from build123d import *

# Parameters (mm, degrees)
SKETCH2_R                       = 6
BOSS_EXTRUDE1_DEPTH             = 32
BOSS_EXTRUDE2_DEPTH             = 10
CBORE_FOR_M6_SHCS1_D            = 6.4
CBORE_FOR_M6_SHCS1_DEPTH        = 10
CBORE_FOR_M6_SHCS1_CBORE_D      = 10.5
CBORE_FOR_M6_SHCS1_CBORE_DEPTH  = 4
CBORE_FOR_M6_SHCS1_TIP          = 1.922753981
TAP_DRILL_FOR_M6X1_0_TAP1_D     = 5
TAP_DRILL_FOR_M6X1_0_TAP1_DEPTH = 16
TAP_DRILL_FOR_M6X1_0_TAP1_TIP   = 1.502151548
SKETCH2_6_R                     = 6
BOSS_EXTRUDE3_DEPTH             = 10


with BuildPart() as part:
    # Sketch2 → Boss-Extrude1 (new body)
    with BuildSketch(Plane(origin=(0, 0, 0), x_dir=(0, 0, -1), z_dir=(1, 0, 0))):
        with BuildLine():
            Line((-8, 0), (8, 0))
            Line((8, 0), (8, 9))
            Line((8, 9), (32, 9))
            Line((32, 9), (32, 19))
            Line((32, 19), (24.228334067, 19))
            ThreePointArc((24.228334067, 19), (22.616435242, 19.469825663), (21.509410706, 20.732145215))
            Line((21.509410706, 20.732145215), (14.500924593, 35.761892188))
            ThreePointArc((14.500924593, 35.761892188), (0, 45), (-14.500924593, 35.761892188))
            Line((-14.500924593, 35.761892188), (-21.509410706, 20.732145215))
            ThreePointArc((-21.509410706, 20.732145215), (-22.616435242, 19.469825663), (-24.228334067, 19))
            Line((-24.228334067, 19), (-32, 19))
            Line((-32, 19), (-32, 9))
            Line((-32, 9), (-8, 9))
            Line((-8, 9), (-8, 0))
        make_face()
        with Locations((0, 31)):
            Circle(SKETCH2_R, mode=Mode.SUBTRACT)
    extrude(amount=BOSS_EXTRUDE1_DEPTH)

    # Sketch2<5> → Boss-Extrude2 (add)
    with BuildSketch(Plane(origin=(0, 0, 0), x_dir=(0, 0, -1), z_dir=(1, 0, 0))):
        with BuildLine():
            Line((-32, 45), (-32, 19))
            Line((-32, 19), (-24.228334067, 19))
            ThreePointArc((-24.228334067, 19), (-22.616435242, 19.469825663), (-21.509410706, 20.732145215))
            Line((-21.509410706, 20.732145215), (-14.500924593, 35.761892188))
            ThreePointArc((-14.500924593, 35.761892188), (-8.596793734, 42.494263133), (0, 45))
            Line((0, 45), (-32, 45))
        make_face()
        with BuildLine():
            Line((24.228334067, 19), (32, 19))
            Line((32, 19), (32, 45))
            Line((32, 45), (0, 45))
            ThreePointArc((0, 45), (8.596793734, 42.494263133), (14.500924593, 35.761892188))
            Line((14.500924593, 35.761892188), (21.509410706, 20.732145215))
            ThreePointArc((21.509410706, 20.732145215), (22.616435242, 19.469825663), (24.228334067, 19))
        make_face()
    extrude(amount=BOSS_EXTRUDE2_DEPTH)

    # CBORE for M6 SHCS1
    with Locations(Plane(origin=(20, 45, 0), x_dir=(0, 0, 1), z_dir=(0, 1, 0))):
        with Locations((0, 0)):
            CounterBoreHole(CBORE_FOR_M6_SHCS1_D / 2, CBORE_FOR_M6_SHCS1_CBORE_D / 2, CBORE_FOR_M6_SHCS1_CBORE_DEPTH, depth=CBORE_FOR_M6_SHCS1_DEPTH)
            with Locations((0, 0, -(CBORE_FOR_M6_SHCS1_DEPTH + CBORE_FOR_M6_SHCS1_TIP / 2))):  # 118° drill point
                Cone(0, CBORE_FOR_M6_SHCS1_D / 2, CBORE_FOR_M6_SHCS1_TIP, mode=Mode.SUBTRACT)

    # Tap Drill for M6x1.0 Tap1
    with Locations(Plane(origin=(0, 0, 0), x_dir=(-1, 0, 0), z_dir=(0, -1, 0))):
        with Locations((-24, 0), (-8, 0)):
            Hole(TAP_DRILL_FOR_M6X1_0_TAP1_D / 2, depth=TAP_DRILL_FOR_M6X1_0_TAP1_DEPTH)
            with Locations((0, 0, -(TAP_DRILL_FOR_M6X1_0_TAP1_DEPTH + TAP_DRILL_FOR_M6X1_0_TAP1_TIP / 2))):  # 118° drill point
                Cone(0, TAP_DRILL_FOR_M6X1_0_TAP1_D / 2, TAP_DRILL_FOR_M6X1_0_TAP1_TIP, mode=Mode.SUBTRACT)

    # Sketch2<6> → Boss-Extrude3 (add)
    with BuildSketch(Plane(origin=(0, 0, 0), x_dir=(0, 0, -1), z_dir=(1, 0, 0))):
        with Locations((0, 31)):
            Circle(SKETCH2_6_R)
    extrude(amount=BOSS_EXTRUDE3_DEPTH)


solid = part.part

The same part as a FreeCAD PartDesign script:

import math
import FreeCAD as App
import Part
import Sketcher

V = App.Vector
Q = App.Units.Quantity

doc = App.newDocument("Part")
params = doc.addObject("Spreadsheet::Sheet", "Params")
for row, (alias, value) in enumerate([
    ("sketch1_diameter", "12 mm"),
    ("sketch1_radius", "3 mm"),
    ("sketch1_radius2", "16 mm"),
    ("sketch1_width", "9 mm"),
    ("sketch1_width2", "10 mm"),
    ("pad1_length", "32 mm"),
    ("sketch2_radius", "3 mm"),
    ("sketch2_radius2", "16 mm"),
    ("sketch2_width", "26 mm"),
    ("sketch2_height", "32 mm"),
    ("pad2_length", "10 mm"),
    ("sketch3_diameter", "6.4 mm"),
    ("hole_diameter", "6.4 mm"),
    ("hole_depth", "10 mm"),
    ("hole_cbore_diameter", "10.5 mm"),
    ("hole_cbore_depth", "4 mm"),
    ("sketch4_diameter", "5 mm"),
    ("hole2_diameter", "5 mm"),
    ("hole2_depth", "16 mm"),
    ("sketch5_diameter", "12 mm"),
    ("pad3_length", "10 mm"),
], start=1):
    params.set(f"A{row}", alias)
    params.set(f"B{row}", "=" + value)
    params.setAlias(f"B{row}", alias)

body = doc.addObject("PartDesign::Body", "Body")

sketch1 = doc.addObject("Sketcher::SketchObject", "Sketch")
body.addObject(sketch1)
sketch1.AttachmentSupport = (doc.YZ_Plane, [""])
sketch1.MapMode = "FlatFace"
sketch1.addGeometry([
    Part.LineSegment(V(0, 8, 0), V(0, -8, 0)),
    Part.LineSegment(V(0, -8, 0), V(9, -8, 0)),
    Part.LineSegment(V(9, -8, 0), V(9, -32, 0)),
    Part.LineSegment(V(9, -32, 0), V(19, -32, 0)),
    Part.LineSegment(V(19, -32, 0), V(19, -24.2, 0)),
    Part.ArcOfCircle(Part.Circle(V(22, -24.2, 0), V(0, 0, 1), 3), math.radians(115), math.radians(180)),
    Part.LineSegment(V(20.7, -21.5, 0), V(35.8, -14.5, 0)),
    Part.ArcOfCircle(Part.Circle(V(29, 0, 0), V(0, 0, 1), 16), math.radians(-65), math.radians(65)),
    Part.LineSegment(V(35.8, 14.5, 0), V(20.7, 21.5, 0)),
    Part.ArcOfCircle(Part.Circle(V(22, 24.2, 0), V(0, 0, 1), 3), math.radians(-180), math.radians(-115)),
    Part.LineSegment(V(19, 24.2, 0), V(19, 32, 0)),
    Part.LineSegment(V(19, 32, 0), V(9, 32, 0)),
    Part.LineSegment(V(9, 32, 0), V(9, 8, 0)),
    Part.LineSegment(V(9, 8, 0), V(0, 8, 0)),
    Part.Circle(V(31, 0, 0), V(0, 0, 1), 6),
], False)
sketch1.addConstraint([
    Sketcher.Constraint("Coincident", 0, 2, 1, 1),
    Sketcher.Constraint("Coincident", 1, 2, 2, 1),
    Sketcher.Constraint("Coincident", 2, 2, 3, 1),
    Sketcher.Constraint("Coincident", 3, 2, 4, 1),
    Sketcher.Constraint("Tangent", 4, 2, 5, 2),
    Sketcher.Constraint("Tangent", 5, 1, 6, 1),
    Sketcher.Constraint("Tangent", 6, 2, 7, 1),
    Sketcher.Constraint("Tangent", 7, 2, 8, 1),
    Sketcher.Constraint("Tangent", 8, 2, 9, 2),
    Sketcher.Constraint("Tangent", 9, 1, 10, 1),
    Sketcher.Constraint("Coincident", 10, 2, 11, 1),
    Sketcher.Constraint("Coincident", 11, 2, 12, 1),
    Sketcher.Constraint("Coincident", 12, 2, 13, 1),
    Sketcher.Constraint("Coincident", 13, 2, 0, 1),
    Sketcher.Constraint("Vertical", 0),
    Sketcher.Constraint("Horizontal", 1),
    Sketcher.Constraint("Vertical", 2),
    Sketcher.Constraint("Horizontal", 3),
    Sketcher.Constraint("Vertical", 4),
    Sketcher.Constraint("Vertical", 10),
    Sketcher.Constraint("Horizontal", 11),
    Sketcher.Constraint("Vertical", 12),
    Sketcher.Constraint("Horizontal", 13),
    Sketcher.Constraint("Equal", 5, 9),
    Sketcher.Constraint("Symmetric", 0, 2, 13, 2, -1, 1),
    Sketcher.Constraint("Symmetric", 5, 3, 9, 3, -1),
    Sketcher.Constraint("Symmetric", 2, 2, 11, 2, -1),
    Sketcher.Constraint("PointOnObject", 7, 3, -1),
    Sketcher.Constraint("PointOnObject", 14, 3, -1),
    Sketcher.Constraint("Diameter", 14, Q("12 mm")),
    Sketcher.Constraint("Radius", 5, Q("3 mm")),
    Sketcher.Constraint("Radius", 7, Q("16 mm")),
    Sketcher.Constraint("DistanceX", 1, 1, 1, 2, Q("9 mm")),
    Sketcher.Constraint("DistanceX", 3, 1, 3, 2, Q("10 mm")),
    Sketcher.Constraint("DistanceY", 0, 2, 0, 1, Q("16 mm")),
    Sketcher.Constraint("DistanceY", 2, 2, 2, 1, Q("24 mm")),
    Sketcher.Constraint("Angle", 6, Q("25 deg")),
    Sketcher.Constraint("DistanceX", -1, 1, 7, 3, Q("29 mm")),
    Sketcher.Constraint("DistanceX", -1, 1, 14, 3, Q("31 mm")),
])
sketch1.setExpression("Constraints[29]", "Params.sketch1_diameter")
sketch1.setExpression("Constraints[30]", "Params.sketch1_radius")
sketch1.setExpression("Constraints[31]", "Params.sketch1_radius2")
sketch1.setExpression("Constraints[32]", "Params.sketch1_width")
sketch1.setExpression("Constraints[33]", "Params.sketch1_width2")
pad1 = doc.addObject("PartDesign::Pad", "Pad")
body.addObject(pad1)
pad1.Profile = sketch1
pad1.setExpression("Length", "Params.pad1_length")

sketch2 = doc.addObject("Sketcher::SketchObject", "Sketch001")
body.addObject(sketch2)
sketch2.AttachmentSupport = (doc.YZ_Plane, [""])
sketch2.MapMode = "FlatFace"
sketch2.addGeometry([
    Part.LineSegment(V(45, 32, 0), V(19, 32, 0)),
    Part.LineSegment(V(19, 32, 0), V(19, 24.2, 0)),
    Part.ArcOfCircle(Part.Circle(V(22, 24.2, 0), V(0, 0, 1), 3), math.radians(-180), math.radians(-115)),
    Part.LineSegment(V(20.7, 21.5, 0), V(35.8, 14.5, 0)),
    Part.ArcOfCircle(Part.Circle(V(29, 0, 0), V(0, 0, 1), 16), math.radians(0), math.radians(65)),
    Part.LineSegment(V(45, 0, 0), V(45, 32, 0)),
    Part.LineSegment(V(19, -24.2, 0), V(19, -32, 0)),
    Part.LineSegment(V(19, -32, 0), V(45, -32, 0)),
    Part.LineSegment(V(45, -32, 0), V(45, 0, 0)),
    Part.ArcOfCircle(Part.Circle(V(29, 0, 0), V(0, 0, 1), 16), math.radians(-65), math.radians(0)),
    Part.LineSegment(V(35.8, -14.5, 0), V(20.7, -21.5, 0)),
    Part.ArcOfCircle(Part.Circle(V(22, -24.2, 0), V(0, 0, 1), 3), math.radians(115), math.radians(180)),
], False)
sketch2.addConstraint([
    Sketcher.Constraint("Coincident", 0, 2, 1, 1),
    Sketcher.Constraint("Tangent", 1, 2, 2, 1),
    Sketcher.Constraint("Tangent", 2, 2, 3, 1),
    Sketcher.Constraint("Tangent", 3, 2, 4, 2),
    Sketcher.Constraint("Tangent", 4, 1, 5, 1),
    Sketcher.Constraint("Coincident", 5, 2, 0, 1),
    Sketcher.Constraint("Coincident", 6, 2, 7, 1),
    Sketcher.Constraint("Coincident", 7, 2, 8, 1),
    Sketcher.Constraint("Tangent", 8, 2, 9, 2),
    Sketcher.Constraint("Tangent", 9, 1, 10, 1),
    Sketcher.Constraint("Tangent", 10, 2, 11, 1),
    Sketcher.Constraint("Tangent", 11, 2, 6, 1),
    Sketcher.Constraint("Horizontal", 0),
    Sketcher.Constraint("Vertical", 1),
    Sketcher.Constraint("Vertical", 5),
    Sketcher.Constraint("Vertical", 6),
    Sketcher.Constraint("Horizontal", 7),
    Sketcher.Constraint("Vertical", 8),
    Sketcher.Constraint("Coincident", 9, 3, 4, 3),
    Sketcher.Constraint("Equal", 4, 9),
    Sketcher.Constraint("Equal", 2, 11),
    Sketcher.Constraint("Symmetric", 2, 3, 11, 3, -1),
    Sketcher.Constraint("PointOnObject", 4, 3, -1),
    Sketcher.Constraint("Equal", 1, 6),
    Sketcher.Constraint("Radius", 2, Q("3 mm")),
    Sketcher.Constraint("Radius", 4, Q("16 mm")),
    Sketcher.Constraint("DistanceX", 0, 2, 0, 1, Q("26 mm")),
    Sketcher.Constraint("DistanceY", 5, 1, 5, 2, Q("32 mm")),
    Sketcher.Constraint("Angle", 3, Q("-25 deg")),
    Sketcher.Constraint("DistanceX", -1, 1, 2, 3, Q("22 mm")),
])
sketch2.setExpression("Constraints[24]", "Params.sketch2_radius")
sketch2.setExpression("Constraints[25]", "Params.sketch2_radius2")
sketch2.setExpression("Constraints[26]", "Params.sketch2_width")
sketch2.setExpression("Constraints[27]", "Params.sketch2_height")
pad2 = doc.addObject("PartDesign::Pad", "Pad001")
body.addObject(pad2)
pad2.Profile = sketch2
pad2.setExpression("Length", "Params.pad2_length")

sketch3 = doc.addObject("Sketcher::SketchObject", "Sketch002")
body.addObject(sketch3)
sketch3.AttachmentSupport = (doc.XZ_Plane, [""])
sketch3.MapMode = "FlatFace"
sketch3.AttachmentOffset = App.Placement(V(0, 0, -45), App.Rotation())
sketch3.addGeometry(Part.Circle(V(20, 0, 0), V(0, 0, 1), 3.2), False)
sketch3.addConstraint([
    Sketcher.Constraint("PointOnObject", 0, 3, -1),
    Sketcher.Constraint("Diameter", 0, Q("6.4 mm")),
    Sketcher.Constraint("DistanceX", -1, 1, 0, 3, Q("20 mm")),
])
sketch3.setExpression("Constraints[1]", "Params.sketch3_diameter")
doc.recompute()
hole = doc.addObject("PartDesign::Hole", "Hole")
body.addObject(hole)
hole.Profile = sketch3
hole.ThreadType = "None"
hole.setExpression("Diameter", "Params.hole_diameter")
hole.DepthType = "Dimension"
hole.setExpression("Depth", "Params.hole_depth")
hole.DrillPoint = "Angled"
hole.DrillPointAngle = 118
hole.HoleCutType = "Counterbore"
hole.setExpression("HoleCutDiameter", "Params.hole_cbore_diameter")
hole.setExpression("HoleCutDepth", "Params.hole_cbore_depth")
hole.Reversed = True

sketch4 = doc.addObject("Sketcher::SketchObject", "Sketch003")
body.addObject(sketch4)
sketch4.AttachmentSupport = (doc.XZ_Plane, [""])
sketch4.MapMode = "FlatFace"
sketch4.addGeometry([
    Part.Circle(V(24, 0, 0), V(0, 0, 1), 2.5),
    Part.Circle(V(8, 0, 0), V(0, 0, 1), 2.5),
], False)
sketch4.addConstraint([
    Sketcher.Constraint("Equal", 0, 1),
    Sketcher.Constraint("PointOnObject", 0, 3, -1),
    Sketcher.Constraint("PointOnObject", 1, 3, -1),
    Sketcher.Constraint("Diameter", 0, Q("5 mm")),
    Sketcher.Constraint("DistanceX", -1, 1, 0, 3, Q("24 mm")),
    Sketcher.Constraint("DistanceX", -1, 1, 1, 3, Q("8 mm")),
])
sketch4.setExpression("Constraints[3]", "Params.sketch4_diameter")
doc.recompute()
hole2 = doc.addObject("PartDesign::Hole", "Hole001")
body.addObject(hole2)
hole2.Profile = sketch4
hole2.ThreadType = "None"
hole2.setExpression("Diameter", "Params.hole2_diameter")
hole2.DepthType = "Dimension"
hole2.setExpression("Depth", "Params.hole2_depth")
hole2.DrillPoint = "Angled"
hole2.DrillPointAngle = 118

sketch5 = doc.addObject("Sketcher::SketchObject", "Sketch004")
body.addObject(sketch5)
sketch5.AttachmentSupport = (doc.YZ_Plane, [""])
sketch5.MapMode = "FlatFace"
sketch5.addGeometry(Part.Circle(V(31, 0, 0), V(0, 0, 1), 6), False)
sketch5.addConstraint([
    Sketcher.Constraint("PointOnObject", 0, 3, -1),
    Sketcher.Constraint("Diameter", 0, Q("12 mm")),
    Sketcher.Constraint("DistanceX", -1, 1, 0, 3, Q("31 mm")),
])
sketch5.setExpression("Constraints[1]", "Params.sketch5_diameter")
pad3 = doc.addObject("PartDesign::Pad", "Pad002")
body.addObject(pad3)
pad3.Profile = sketch5
pad3.setExpression("Length", "Params.pad3_length")

doc.recompute()
